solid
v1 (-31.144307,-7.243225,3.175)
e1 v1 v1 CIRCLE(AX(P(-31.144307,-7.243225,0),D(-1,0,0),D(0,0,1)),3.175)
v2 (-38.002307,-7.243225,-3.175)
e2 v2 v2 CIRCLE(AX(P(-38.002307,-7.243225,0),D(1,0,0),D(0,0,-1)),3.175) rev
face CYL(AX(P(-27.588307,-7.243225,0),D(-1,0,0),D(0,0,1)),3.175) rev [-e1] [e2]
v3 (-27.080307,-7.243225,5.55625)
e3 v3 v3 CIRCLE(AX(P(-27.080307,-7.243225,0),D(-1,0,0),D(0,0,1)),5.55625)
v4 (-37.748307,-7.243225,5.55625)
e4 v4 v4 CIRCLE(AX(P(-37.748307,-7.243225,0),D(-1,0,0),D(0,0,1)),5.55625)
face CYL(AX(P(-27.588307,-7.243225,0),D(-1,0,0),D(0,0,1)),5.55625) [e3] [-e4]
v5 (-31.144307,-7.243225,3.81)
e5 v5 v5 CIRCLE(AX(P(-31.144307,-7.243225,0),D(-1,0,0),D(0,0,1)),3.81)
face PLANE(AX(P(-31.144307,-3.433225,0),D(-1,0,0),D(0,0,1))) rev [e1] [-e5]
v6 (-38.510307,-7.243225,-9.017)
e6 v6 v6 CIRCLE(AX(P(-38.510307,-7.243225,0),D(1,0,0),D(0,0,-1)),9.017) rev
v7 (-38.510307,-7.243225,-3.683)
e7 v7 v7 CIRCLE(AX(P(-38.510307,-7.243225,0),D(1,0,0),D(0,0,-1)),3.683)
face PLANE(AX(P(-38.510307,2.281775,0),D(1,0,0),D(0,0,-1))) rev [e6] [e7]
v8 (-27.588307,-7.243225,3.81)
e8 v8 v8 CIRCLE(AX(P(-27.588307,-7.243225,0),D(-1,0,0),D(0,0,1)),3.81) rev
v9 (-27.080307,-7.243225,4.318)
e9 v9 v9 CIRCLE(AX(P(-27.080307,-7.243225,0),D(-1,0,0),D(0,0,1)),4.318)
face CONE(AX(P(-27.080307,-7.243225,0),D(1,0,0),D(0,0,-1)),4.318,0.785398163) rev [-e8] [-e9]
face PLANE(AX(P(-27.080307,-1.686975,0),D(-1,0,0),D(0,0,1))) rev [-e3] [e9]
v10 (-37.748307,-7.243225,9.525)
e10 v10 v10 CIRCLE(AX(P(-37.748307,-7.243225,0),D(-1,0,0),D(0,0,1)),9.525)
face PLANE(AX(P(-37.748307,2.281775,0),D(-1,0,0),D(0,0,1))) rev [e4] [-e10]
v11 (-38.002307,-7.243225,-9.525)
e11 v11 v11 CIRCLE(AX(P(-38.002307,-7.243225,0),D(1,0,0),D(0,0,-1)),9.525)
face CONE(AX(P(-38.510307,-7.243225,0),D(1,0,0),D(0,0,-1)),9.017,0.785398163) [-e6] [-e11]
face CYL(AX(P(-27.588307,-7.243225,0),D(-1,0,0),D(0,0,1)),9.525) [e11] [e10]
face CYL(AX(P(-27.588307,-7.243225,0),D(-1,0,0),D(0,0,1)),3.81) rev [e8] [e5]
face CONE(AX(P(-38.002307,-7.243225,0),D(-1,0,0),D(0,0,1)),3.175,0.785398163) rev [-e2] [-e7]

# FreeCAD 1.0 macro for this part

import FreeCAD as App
import Part
import Sketcher
from FreeCAD import Vector
Q = App.Units.Quantity


def edges_at(feature, points):
    """Names of the edges that pass closest to the given points."""
    edges = feature.Shape.Edges
    near = lambda p: min(range(len(edges)), key=lambda i: edges[i].distToShape(Part.Vertex(*p))[0])
    return sorted({f"Edge{near(p) + 1}" for p in points})


def add_polygon(sketch, points):
    """Adds a closed chain of lines whose ends are joined by coincident constraints."""
    first, n = sketch.GeometryCount, len(points)
    for a, b in zip(points, points[1:] + points[:1]):
        sketch.addGeometry(Part.LineSegment(App.Vector(*a, 0), App.Vector(*b, 0)), False)
    for i in range(n):
        sketch.addConstraint(Sketcher.Constraint("Coincident", first + i, 2, first + (i + 1) % n, 1))

doc = App.newDocument("Part")
body = doc.addObject("PartDesign::Body", "Body")

# Sketch on XY plane
sketch1 = body.newObject("Sketcher::SketchObject", "Sketch")
sketch1.AttachmentSupport = (doc.getObject("XY_Plane"), [""])
sketch1.MapMode = "FlatFace"
add_polygon(sketch1, [(-37.7, 2.3), (-38.5, 2.3), (-38.5, -4.1), (-31.1, -4.1), (-31.1, -3.4), (-27.1, -3.4), (-27.1, -1.7), (-37.7, -1.7)])  # lines 0-7
sketch1.addGeometry(Part.LineSegment(Vector(-38.5, -7.2, 0), Vector(-27.1, -7.2, 0)), True)  # axis
sketch1.addConstraint([
    Sketcher.Constraint("Horizontal", 0),
    Sketcher.Constraint("Vertical", 1),
    Sketcher.Constraint("Horizontal", 2),
    Sketcher.Constraint("Vertical", 3),
    Sketcher.Constraint("Horizontal", 4),
    Sketcher.Constraint("Vertical", 5),
    Sketcher.Constraint("Horizontal", 6),
    Sketcher.Constraint("Vertical", 7),
    Sketcher.Constraint("Horizontal", 8),
    Sketcher.Constraint("Vertical", 1, 2, 8, 1),
    Sketcher.Constraint("Vertical", 5, 2, 8, 2),
    Sketcher.Constraint("DistanceX", 0, 2, 0, 1, Q("0.03 in")),
    Sketcher.Constraint("DistanceX", 2, 1, 2, 2, Q("0.29 in")),
    Sketcher.Constraint("DistanceX", 4, 1, 4, 2, Q("0.16 in")),
    Sketcher.Constraint("DistanceY", 1, 2, 1, 1, Q("0.25 in")),
    Sketcher.Constraint("DistanceY", 3, 1, 3, 2, Q("0.025 in")),
    Sketcher.Constraint("DistanceY", 7, 1, 7, 2, Q("0.15625 in")),
    Sketcher.Constraint("DistanceY", 8, 1, 3, 2, Q("0.15 in")),
    Sketcher.Constraint("DistanceX", 0, 2, -1, 1, 38.510307),
    Sketcher.Constraint("DistanceY", -1, 1, 0, 2, 2.281775),
])
revolution = body.newObject("PartDesign::Revolution", "Revolution")
revolution.Profile = sketch1
revolution.ReferenceAxis = (sketch1, ["Axis0"])
revolution.Angle = 360
doc.recompute()

chamfer = body.newObject("PartDesign::Chamfer", "Chamfer")
chamfer.Base = (revolution, edges_at(revolution, [(-38.51, -7.243, -3.175), (-38.51, -7.243, -9.525), (-27.08, -7.243, -3.81)]))
chamfer.Size = Q("0.02 in")

doc.recompute()
